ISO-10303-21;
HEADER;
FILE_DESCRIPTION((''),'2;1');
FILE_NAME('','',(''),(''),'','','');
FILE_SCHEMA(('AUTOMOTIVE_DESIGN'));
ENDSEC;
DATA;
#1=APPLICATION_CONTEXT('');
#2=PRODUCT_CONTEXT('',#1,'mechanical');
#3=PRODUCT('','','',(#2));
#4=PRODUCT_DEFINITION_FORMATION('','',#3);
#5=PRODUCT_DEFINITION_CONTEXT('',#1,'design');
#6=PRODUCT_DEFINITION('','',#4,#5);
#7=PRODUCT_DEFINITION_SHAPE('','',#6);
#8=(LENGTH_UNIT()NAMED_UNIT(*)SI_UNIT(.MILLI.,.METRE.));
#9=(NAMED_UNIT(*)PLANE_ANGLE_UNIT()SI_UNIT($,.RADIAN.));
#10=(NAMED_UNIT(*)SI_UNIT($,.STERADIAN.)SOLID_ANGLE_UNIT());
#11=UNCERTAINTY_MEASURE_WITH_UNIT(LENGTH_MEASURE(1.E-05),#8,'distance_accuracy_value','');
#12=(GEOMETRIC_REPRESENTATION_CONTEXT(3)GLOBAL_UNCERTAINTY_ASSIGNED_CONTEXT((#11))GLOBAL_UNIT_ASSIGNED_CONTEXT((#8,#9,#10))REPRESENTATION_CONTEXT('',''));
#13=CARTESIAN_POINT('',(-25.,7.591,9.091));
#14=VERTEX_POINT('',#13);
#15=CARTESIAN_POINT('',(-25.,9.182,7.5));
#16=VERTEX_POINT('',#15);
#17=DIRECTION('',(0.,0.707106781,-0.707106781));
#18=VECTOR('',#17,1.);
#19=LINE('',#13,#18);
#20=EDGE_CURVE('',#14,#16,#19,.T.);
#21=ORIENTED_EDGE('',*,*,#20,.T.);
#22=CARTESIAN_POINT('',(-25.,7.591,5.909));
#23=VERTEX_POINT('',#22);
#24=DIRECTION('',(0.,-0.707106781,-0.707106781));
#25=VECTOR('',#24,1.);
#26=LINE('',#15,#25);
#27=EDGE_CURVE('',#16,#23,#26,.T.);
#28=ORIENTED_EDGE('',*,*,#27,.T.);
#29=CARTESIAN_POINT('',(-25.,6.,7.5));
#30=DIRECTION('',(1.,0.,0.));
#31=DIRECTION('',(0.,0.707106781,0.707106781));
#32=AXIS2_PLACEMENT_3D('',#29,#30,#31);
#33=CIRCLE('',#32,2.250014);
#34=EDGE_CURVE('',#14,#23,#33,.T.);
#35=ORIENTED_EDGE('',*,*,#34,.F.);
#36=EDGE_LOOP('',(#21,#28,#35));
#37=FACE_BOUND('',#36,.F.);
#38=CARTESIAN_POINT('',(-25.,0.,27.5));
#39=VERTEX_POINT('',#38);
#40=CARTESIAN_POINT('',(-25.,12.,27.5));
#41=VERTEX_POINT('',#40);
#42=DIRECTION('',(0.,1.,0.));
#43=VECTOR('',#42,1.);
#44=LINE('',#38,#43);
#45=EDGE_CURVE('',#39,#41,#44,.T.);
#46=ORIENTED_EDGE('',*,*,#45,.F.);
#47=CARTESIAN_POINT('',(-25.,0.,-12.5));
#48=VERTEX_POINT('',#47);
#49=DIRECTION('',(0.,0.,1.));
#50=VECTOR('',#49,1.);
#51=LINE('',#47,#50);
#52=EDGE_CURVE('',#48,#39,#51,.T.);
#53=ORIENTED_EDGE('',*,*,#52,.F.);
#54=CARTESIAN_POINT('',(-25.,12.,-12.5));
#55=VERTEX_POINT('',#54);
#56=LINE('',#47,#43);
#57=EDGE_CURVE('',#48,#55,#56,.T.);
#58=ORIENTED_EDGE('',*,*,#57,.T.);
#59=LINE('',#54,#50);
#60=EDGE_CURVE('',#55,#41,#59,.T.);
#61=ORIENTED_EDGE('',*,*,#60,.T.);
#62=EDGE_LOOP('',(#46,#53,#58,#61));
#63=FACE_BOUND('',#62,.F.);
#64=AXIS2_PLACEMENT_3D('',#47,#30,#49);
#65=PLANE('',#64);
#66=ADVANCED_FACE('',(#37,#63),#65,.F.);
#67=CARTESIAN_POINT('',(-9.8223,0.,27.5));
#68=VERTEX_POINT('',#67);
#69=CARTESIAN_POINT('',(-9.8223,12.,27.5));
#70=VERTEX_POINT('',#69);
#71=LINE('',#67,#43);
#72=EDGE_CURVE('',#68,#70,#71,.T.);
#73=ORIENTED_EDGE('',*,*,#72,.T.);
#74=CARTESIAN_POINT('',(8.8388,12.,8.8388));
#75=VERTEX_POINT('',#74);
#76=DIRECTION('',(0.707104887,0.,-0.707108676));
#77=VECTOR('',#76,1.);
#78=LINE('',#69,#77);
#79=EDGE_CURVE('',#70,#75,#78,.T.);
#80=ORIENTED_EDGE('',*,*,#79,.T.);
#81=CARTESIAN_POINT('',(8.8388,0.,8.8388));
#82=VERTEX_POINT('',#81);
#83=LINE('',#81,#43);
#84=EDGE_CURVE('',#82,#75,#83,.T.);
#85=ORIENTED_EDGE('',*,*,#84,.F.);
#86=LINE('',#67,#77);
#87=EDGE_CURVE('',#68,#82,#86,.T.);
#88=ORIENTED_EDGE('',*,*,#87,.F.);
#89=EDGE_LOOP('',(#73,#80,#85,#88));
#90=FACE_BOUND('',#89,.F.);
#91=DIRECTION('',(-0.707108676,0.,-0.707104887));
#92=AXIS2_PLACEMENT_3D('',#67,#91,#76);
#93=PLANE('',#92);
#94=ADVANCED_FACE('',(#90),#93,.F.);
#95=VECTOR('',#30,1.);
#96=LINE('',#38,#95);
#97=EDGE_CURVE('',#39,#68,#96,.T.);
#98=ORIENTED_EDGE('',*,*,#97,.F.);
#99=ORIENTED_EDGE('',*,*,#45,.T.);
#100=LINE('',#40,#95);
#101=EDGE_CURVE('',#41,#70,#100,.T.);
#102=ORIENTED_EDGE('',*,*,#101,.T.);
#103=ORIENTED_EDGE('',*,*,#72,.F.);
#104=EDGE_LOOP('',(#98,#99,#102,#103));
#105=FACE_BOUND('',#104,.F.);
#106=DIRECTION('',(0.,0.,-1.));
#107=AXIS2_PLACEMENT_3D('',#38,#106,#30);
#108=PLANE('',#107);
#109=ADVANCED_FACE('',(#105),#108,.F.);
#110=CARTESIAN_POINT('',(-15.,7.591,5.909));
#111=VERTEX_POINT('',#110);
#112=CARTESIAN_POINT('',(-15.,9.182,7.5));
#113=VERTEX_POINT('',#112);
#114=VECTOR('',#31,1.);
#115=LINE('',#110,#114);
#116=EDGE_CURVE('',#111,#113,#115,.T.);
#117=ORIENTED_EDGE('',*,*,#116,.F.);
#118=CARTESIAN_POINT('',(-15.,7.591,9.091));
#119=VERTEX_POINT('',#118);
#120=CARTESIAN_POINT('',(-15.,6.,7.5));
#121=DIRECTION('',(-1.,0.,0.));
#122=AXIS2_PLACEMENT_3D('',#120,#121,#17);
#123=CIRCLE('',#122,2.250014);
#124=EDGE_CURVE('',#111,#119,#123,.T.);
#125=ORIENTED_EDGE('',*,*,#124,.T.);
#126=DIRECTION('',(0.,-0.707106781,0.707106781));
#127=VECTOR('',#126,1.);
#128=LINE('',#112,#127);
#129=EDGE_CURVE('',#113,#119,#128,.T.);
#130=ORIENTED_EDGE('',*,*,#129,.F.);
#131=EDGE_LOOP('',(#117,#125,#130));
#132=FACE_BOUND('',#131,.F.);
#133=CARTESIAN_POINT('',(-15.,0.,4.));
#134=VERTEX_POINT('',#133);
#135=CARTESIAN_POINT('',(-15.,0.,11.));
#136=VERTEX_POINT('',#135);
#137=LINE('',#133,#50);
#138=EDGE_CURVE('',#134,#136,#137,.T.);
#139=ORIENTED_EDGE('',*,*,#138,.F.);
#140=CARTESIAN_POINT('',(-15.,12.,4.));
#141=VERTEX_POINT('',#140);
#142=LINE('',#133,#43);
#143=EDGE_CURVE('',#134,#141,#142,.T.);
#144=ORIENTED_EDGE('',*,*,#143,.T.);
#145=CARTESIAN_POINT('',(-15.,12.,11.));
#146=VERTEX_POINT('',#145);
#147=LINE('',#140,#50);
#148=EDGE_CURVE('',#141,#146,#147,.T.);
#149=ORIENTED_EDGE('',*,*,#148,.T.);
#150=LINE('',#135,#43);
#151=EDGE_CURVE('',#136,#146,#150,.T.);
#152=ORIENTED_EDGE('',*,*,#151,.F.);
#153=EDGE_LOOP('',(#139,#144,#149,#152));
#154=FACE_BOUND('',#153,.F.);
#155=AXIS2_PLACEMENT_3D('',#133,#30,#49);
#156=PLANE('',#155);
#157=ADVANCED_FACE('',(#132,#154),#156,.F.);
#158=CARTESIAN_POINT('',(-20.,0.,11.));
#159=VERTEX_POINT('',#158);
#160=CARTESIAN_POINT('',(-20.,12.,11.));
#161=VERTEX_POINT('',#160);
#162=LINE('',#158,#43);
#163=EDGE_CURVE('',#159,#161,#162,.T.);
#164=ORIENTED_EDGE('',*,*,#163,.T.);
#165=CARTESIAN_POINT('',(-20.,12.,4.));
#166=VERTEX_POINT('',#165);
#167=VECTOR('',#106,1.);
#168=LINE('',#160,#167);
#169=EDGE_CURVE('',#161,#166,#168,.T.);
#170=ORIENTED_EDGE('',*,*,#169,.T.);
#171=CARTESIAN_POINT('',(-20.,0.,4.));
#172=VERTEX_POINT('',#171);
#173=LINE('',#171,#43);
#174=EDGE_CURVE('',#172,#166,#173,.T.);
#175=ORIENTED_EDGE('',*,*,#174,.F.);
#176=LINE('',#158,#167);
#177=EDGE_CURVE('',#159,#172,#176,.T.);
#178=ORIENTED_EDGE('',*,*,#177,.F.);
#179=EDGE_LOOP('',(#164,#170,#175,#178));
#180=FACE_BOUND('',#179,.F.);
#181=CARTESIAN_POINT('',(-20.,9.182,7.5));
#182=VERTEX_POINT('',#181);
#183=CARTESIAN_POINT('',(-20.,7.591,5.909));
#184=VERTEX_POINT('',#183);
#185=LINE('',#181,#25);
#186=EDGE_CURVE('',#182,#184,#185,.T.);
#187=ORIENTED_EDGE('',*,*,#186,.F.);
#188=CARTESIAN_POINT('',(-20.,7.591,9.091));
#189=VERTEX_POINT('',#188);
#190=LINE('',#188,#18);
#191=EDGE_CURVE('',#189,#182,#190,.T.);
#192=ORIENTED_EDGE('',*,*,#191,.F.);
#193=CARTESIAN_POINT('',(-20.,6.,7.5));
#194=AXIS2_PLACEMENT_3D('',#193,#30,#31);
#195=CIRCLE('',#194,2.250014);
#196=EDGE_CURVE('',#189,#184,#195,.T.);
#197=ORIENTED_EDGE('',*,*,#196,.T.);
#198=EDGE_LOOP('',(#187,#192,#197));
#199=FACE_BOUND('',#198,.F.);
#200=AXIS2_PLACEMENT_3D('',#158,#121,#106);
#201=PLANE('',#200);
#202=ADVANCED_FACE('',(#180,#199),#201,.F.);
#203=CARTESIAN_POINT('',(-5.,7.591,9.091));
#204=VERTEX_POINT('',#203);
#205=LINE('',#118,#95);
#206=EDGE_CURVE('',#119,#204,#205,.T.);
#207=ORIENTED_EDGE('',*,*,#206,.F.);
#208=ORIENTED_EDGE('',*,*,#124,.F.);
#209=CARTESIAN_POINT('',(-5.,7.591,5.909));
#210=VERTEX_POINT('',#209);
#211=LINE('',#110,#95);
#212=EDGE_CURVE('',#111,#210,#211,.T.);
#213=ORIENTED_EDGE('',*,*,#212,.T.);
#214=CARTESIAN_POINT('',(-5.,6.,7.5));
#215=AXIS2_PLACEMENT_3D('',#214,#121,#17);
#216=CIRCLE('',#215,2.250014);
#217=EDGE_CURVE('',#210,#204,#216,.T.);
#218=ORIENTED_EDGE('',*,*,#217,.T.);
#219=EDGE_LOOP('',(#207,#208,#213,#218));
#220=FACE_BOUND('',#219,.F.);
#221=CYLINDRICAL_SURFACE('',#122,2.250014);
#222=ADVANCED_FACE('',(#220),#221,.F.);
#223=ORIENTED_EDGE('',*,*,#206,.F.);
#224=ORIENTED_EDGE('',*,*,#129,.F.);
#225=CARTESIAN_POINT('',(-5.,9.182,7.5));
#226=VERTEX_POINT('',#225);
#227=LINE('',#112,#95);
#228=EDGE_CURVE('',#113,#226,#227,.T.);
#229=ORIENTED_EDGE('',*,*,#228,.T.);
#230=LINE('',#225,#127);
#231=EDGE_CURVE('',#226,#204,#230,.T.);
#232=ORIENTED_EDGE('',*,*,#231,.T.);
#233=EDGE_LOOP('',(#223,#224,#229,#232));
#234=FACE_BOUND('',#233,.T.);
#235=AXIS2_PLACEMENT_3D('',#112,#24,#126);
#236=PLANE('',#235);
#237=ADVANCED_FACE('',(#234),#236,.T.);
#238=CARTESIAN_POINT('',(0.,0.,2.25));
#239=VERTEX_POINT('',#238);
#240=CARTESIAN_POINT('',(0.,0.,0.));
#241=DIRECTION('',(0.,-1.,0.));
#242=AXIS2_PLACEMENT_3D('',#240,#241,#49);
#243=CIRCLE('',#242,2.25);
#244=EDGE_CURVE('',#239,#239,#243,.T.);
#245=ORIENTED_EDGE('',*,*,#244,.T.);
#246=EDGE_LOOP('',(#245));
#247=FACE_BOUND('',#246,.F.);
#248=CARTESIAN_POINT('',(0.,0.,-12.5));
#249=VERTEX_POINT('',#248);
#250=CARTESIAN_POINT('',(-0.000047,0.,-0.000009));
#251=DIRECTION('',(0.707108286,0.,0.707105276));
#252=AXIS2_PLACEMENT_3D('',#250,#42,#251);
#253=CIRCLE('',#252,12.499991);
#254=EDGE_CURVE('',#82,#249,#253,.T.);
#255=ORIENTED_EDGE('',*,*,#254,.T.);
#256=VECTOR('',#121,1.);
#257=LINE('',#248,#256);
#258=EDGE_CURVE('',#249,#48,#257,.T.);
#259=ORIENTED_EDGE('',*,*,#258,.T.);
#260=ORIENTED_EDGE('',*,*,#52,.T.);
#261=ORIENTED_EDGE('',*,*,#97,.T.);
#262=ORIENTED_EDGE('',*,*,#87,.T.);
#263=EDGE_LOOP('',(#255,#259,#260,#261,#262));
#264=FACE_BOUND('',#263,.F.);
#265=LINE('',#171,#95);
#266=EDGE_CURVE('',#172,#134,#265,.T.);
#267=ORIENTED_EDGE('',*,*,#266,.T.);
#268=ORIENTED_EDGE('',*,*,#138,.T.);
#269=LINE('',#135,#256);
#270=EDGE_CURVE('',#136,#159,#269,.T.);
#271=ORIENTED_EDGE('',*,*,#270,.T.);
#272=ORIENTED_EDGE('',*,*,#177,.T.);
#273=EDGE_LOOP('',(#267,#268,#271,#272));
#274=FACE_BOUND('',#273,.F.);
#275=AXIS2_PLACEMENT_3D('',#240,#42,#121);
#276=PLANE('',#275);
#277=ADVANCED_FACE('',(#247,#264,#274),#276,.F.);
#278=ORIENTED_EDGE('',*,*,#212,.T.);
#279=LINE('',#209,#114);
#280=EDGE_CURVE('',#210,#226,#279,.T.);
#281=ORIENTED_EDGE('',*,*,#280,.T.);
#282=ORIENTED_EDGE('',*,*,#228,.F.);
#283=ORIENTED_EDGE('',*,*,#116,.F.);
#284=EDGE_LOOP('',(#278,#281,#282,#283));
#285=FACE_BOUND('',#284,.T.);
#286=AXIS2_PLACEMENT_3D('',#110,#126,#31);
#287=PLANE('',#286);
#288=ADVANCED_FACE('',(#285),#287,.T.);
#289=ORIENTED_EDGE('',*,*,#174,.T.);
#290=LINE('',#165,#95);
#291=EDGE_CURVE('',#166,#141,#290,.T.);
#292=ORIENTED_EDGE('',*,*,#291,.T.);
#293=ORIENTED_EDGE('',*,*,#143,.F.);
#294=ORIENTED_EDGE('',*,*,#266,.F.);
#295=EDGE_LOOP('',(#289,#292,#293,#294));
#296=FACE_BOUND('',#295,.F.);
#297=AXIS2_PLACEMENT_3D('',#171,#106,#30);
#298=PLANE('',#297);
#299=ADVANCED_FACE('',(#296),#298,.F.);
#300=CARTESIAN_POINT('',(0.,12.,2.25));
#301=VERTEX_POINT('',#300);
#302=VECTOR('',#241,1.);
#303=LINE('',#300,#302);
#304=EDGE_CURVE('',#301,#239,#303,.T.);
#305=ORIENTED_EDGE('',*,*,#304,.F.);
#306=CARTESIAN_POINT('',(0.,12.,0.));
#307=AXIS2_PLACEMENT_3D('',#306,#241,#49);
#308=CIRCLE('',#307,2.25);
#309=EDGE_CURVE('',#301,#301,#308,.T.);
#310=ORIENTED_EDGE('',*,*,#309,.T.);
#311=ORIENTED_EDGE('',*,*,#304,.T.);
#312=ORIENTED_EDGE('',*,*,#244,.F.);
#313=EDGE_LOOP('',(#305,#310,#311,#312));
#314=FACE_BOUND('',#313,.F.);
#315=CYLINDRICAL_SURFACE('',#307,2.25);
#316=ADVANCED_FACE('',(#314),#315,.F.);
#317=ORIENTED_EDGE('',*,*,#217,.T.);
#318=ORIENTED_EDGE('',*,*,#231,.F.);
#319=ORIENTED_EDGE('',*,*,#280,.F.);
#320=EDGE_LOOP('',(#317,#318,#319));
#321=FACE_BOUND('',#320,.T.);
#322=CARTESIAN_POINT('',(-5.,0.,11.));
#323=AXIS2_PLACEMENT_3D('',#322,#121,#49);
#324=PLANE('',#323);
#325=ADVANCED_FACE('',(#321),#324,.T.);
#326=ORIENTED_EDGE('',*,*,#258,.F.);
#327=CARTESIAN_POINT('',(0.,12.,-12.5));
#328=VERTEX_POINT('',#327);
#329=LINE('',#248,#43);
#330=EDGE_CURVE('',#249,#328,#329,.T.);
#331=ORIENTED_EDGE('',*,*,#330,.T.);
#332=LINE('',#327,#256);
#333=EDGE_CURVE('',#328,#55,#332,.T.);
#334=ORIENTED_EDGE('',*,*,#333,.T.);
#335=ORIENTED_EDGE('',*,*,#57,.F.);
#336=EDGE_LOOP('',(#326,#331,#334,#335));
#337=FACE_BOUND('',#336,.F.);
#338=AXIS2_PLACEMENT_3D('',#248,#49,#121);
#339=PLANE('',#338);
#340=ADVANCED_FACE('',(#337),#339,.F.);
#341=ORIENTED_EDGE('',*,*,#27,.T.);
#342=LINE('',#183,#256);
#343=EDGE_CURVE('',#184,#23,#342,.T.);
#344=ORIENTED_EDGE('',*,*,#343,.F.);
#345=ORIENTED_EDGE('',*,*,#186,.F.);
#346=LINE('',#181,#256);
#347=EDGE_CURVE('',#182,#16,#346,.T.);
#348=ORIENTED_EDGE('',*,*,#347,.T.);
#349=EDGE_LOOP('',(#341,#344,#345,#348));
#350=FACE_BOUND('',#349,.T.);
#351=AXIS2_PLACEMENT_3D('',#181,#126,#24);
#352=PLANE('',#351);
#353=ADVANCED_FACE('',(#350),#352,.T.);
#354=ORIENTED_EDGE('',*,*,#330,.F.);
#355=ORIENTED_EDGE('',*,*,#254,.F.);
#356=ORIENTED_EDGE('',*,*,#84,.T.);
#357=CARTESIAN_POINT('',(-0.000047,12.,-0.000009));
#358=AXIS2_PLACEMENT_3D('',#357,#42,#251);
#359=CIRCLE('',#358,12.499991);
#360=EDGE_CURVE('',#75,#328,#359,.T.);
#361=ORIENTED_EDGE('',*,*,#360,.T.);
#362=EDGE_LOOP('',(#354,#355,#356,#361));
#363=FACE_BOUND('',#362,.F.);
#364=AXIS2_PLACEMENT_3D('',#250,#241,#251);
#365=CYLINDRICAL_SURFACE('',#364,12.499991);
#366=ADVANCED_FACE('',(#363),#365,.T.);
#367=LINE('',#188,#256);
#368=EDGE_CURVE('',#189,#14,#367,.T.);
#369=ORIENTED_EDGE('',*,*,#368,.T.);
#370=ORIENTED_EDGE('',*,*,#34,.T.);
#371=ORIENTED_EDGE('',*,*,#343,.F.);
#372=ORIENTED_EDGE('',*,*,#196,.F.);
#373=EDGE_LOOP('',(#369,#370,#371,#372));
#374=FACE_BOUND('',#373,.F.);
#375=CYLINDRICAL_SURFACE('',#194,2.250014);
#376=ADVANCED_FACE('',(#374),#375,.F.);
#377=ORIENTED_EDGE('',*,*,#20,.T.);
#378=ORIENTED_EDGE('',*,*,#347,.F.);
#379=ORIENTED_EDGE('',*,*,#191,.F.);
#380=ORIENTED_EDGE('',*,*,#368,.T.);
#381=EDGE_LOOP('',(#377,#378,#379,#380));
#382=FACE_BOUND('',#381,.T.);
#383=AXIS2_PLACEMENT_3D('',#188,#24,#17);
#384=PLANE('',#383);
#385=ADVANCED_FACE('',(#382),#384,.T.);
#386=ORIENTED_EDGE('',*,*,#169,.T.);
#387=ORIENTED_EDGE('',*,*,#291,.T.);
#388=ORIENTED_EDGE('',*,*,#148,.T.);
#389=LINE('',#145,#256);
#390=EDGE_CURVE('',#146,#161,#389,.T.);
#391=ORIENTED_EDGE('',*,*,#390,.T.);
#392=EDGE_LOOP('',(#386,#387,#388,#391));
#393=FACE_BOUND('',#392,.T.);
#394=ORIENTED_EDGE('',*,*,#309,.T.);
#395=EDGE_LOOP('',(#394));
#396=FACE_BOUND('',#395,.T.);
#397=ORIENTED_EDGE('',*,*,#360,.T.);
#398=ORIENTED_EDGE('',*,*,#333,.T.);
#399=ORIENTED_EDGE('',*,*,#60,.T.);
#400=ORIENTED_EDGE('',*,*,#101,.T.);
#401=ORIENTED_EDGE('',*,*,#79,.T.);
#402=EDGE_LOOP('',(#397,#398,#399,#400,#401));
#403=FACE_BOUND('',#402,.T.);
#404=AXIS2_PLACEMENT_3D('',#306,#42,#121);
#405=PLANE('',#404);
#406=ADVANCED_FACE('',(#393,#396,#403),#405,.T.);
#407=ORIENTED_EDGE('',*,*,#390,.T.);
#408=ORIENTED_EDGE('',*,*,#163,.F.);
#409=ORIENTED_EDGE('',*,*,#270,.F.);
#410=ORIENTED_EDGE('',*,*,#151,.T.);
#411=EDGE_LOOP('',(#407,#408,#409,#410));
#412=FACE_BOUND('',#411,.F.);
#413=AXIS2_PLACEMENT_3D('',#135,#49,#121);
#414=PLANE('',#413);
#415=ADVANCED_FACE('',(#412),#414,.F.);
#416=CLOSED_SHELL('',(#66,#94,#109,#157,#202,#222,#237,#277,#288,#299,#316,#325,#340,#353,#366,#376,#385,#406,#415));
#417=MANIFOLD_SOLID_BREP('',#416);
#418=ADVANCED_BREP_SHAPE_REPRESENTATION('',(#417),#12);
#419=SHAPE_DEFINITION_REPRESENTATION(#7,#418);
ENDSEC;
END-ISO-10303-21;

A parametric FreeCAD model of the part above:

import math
import FreeCAD as App
import Part
import Sketcher
Q = App.Units.Quantity

doc = App.newDocument("Part")
body = doc.addObject("PartDesign::Body", "Body")

# Sketch on XZ plane
sketch1 = doc.addObject("Sketcher::SketchObject", "Sketch")
body.addObject(sketch1)
sketch1.AttachmentSupport = (doc.XZ_Plane, [""])
sketch1.MapMode = "FlatFace"
sketch1.addGeometry([
    Part.LineSegment(App.Vector(-25, 28, 0), App.Vector(-10, 28, 0)),  # 0
    Part.LineSegment(App.Vector(-10, 28, 0), App.Vector(9, 9, 0)),  # 1
    Part.ArcOfCircle(Part.Circle(App.Vector(0, 0, 0), App.Vector(0, 0, 1), 12), math.radians(-90), math.radians(45)),  # 2
    Part.LineSegment(App.Vector(0, -12, 0), App.Vector(-25, -12, 0)),  # 3
    Part.LineSegment(App.Vector(-25, -12, 0), App.Vector(-25, 28, 0)),  # 4
], False)
sketch1.addConstraint([
    Sketcher.Constraint("Coincident", 0, 2, 1, 1),
    Sketcher.Constraint("Tangent", 1, 2, 2, 2),
    Sketcher.Constraint("Tangent", 2, 1, 3, 1),
    Sketcher.Constraint("Coincident", 3, 2, 4, 1),
    Sketcher.Constraint("Coincident", 4, 2, 0, 1),
    Sketcher.Constraint("Horizontal", 0),
    Sketcher.Constraint("Horizontal", 3),
    Sketcher.Constraint("Vertical", 4),
    Sketcher.Constraint("Coincident", 2, 3, -1, 1),
    Sketcher.Constraint("Radius", 2, Q("12.5 mm")),
    Sketcher.Constraint("DistanceX", 3, 2, 3, 1, Q("25 mm")),
    Sketcher.Constraint("DistanceY", 4, 1, 4, 2, Q("40 mm")),
    Sketcher.Constraint("Angle", 1, Q("-45.0002 deg")),
])
pad1 = doc.addObject("PartDesign::Pad", "Pad")
body.addObject(pad1)
pad1.Profile = sketch1
pad1.Length = 12
pad1.Reversed = True

# Sketch on XZ plane
sketch2 = doc.addObject("Sketcher::SketchObject", "Sketch001")
body.addObject(sketch2)
sketch2.AttachmentSupport = (doc.XZ_Plane, [""])
sketch2.MapMode = "FlatFace"
sketch2.AttachmentOffset = App.Placement(App.Vector(0, 0, -12), App.Rotation())
sketch2.addGeometry(Part.Circle(App.Vector(0, 0, 0), App.Vector(0, 0, 1), 2.2), False)
sketch2.addConstraint([
    Sketcher.Constraint("Coincident", 0, 3, -1, 1),
    Sketcher.Constraint("Diameter", 0, Q("4.5 mm")),
])
doc.recompute()
hole = doc.addObject("PartDesign::Hole", "Hole")
body.addObject(hole)
hole.Profile = sketch2
hole.ThreadType = "None"
hole.Diameter = 4.5
hole.DepthType = "Dimension"
hole.Depth = 12
hole.DrillPoint = "Flat"
hole.Reversed = True

# Sketch on XZ plane
sketch3 = doc.addObject("Sketcher::SketchObject", "Sketch002")
body.addObject(sketch3)
sketch3.AttachmentSupport = (doc.XZ_Plane, [""])
sketch3.MapMode = "FlatFace"
sketch3.addGeometry([
    Part.LineSegment(App.Vector(-15, 11, 0), App.Vector(-15, 4, 0)),
    Part.LineSegment(App.Vector(-15, 4, 0), App.Vector(-20, 4, 0)),
    Part.LineSegment(App.Vector(-20, 4, 0), App.Vector(-20, 11, 0)),
    Part.LineSegment(App.Vector(-20, 11, 0), App.Vector(-15, 11, 0)),
], False)
sketch3.addConstraint([
    Sketcher.Constraint("Coincident", 0, 2, 1, 1),
    Sketcher.Constraint("Coincident", 1, 2, 2, 1),
    Sketcher.Constraint("Coincident", 2, 2, 3, 1),
    Sketcher.Constraint("Coincident", 3, 2, 0, 1),
    Sketcher.Constraint("Vertical", 0),
    Sketcher.Constraint("Horizontal", 1),
    Sketcher.Constraint("Vertical", 2),
    Sketcher.Constraint("Horizontal", 3),
    Sketcher.Constraint("DistanceX", 1, 2, 1, 1, Q("5 mm")),
    Sketcher.Constraint("DistanceY", 0, 2, 0, 1, Q("7 mm")),
    Sketcher.Constraint("DistanceX", 0, 2, -1, 1, Q("15 mm")),
    Sketcher.Constraint("DistanceY", -1, 1, 0, 2, Q("4 mm")),
])
pocket1 = doc.addObject("PartDesign::Pocket", "Pocket")
body.addObject(pocket1)
pocket1.Profile = sketch3
pocket1.Length = 12

# Sketch on YZ plane
sketch4 = doc.addObject("Sketcher::SketchObject", "Sketch003")
body.addObject(sketch4)
sketch4.AttachmentSupport = (doc.YZ_Plane, [""])
sketch4.MapMode = "FlatFace"
sketch4.AttachmentOffset = App.Placement(App.Vector(0, 0, -15), App.Rotation())
sketch4.addGeometry([
    Part.LineSegment(App.Vector(7.6, 9.1, 0), App.Vector(9.2, 7.5, 0)),
    Part.LineSegment(App.Vector(9.2, 7.5, 0), App.Vector(7.6, 5.9, 0)),
    Part.ArcOfCircle(Part.Circle(App.Vector(6, 7.5, 0), App.Vector(0, 0, 1), 2.3), math.radians(45), math.radians(315)),
], False)
sketch4.addConstraint([
    Sketcher.Constraint("Coincident", 0, 2, 1, 1),
    Sketcher.Constraint("Tangent", 1, 2, 2, 2),
    Sketcher.Constraint("Tangent", 2, 1, 0, 1),
    Sketcher.Constraint("Perpendicular", 0, 1),
    Sketcher.Constraint("Horizontal", 2, 3, 0, 2),
    Sketcher.Constraint("Radius", 2, Q("2.25 mm")),
    Sketcher.Constraint("DistanceX", -1, 1, 2, 3, Q("6 mm")),
    Sketcher.Constraint("DistanceY", -1, 1, 2, 3, Q("7.5 mm")),
])
pocket2 = doc.addObject("PartDesign::Pocket", "Pocket001")
body.addObject(pocket2)
pocket2.Profile = sketch4
pocket2.Length = 10
pocket2.Reversed = True

# Sketch on YZ plane
sketch5 = doc.addObject("Sketcher::SketchObject", "Sketch004")
body.addObject(sketch5)
sketch5.AttachmentSupport = (doc.YZ_Plane, [""])
sketch5.MapMode = "FlatFace"
sketch5.AttachmentOffset = App.Placement(App.Vector(0, 0, -20), App.Rotation())
sketch5.addGeometry([
    Part.LineSegment(App.Vector(7.6, 5.9, 0), App.Vector(9.2, 7.5, 0)),
    Part.LineSegment(App.Vector(9.2, 7.5, 0), App.Vector(7.6, 9.1, 0)),
    Part.ArcOfCircle(Part.Circle(App.Vector(6, 7.5, 0), App.Vector(0, 0, 1), 2.3), math.radians(45), math.radians(315)),
], False)
sketch5.addConstraint([
    Sketcher.Constraint("Coincident", 0, 2, 1, 1),
    Sketcher.Constraint("Tangent", 1, 2, 2, 1),
    Sketcher.Constraint("Tangent", 2, 2, 0, 1),
    Sketcher.Constraint("Perpendicular", 0, 1),
    Sketcher.Constraint("Horizontal", 2, 3, 0, 2),
    Sketcher.Constraint("Radius", 2, Q("2.25 mm")),
    Sketcher.Constraint("DistanceX", -1, 1, 2, 3, Q("6 mm")),
    Sketcher.Constraint("DistanceY", -1, 1, 2, 3, Q("7.5 mm")),
])
pocket3 = doc.addObject("PartDesign::Pocket", "Pocket002")
body.addObject(pocket3)
pocket3.Profile = sketch5
pocket3.Length = 5

doc.recompute()
